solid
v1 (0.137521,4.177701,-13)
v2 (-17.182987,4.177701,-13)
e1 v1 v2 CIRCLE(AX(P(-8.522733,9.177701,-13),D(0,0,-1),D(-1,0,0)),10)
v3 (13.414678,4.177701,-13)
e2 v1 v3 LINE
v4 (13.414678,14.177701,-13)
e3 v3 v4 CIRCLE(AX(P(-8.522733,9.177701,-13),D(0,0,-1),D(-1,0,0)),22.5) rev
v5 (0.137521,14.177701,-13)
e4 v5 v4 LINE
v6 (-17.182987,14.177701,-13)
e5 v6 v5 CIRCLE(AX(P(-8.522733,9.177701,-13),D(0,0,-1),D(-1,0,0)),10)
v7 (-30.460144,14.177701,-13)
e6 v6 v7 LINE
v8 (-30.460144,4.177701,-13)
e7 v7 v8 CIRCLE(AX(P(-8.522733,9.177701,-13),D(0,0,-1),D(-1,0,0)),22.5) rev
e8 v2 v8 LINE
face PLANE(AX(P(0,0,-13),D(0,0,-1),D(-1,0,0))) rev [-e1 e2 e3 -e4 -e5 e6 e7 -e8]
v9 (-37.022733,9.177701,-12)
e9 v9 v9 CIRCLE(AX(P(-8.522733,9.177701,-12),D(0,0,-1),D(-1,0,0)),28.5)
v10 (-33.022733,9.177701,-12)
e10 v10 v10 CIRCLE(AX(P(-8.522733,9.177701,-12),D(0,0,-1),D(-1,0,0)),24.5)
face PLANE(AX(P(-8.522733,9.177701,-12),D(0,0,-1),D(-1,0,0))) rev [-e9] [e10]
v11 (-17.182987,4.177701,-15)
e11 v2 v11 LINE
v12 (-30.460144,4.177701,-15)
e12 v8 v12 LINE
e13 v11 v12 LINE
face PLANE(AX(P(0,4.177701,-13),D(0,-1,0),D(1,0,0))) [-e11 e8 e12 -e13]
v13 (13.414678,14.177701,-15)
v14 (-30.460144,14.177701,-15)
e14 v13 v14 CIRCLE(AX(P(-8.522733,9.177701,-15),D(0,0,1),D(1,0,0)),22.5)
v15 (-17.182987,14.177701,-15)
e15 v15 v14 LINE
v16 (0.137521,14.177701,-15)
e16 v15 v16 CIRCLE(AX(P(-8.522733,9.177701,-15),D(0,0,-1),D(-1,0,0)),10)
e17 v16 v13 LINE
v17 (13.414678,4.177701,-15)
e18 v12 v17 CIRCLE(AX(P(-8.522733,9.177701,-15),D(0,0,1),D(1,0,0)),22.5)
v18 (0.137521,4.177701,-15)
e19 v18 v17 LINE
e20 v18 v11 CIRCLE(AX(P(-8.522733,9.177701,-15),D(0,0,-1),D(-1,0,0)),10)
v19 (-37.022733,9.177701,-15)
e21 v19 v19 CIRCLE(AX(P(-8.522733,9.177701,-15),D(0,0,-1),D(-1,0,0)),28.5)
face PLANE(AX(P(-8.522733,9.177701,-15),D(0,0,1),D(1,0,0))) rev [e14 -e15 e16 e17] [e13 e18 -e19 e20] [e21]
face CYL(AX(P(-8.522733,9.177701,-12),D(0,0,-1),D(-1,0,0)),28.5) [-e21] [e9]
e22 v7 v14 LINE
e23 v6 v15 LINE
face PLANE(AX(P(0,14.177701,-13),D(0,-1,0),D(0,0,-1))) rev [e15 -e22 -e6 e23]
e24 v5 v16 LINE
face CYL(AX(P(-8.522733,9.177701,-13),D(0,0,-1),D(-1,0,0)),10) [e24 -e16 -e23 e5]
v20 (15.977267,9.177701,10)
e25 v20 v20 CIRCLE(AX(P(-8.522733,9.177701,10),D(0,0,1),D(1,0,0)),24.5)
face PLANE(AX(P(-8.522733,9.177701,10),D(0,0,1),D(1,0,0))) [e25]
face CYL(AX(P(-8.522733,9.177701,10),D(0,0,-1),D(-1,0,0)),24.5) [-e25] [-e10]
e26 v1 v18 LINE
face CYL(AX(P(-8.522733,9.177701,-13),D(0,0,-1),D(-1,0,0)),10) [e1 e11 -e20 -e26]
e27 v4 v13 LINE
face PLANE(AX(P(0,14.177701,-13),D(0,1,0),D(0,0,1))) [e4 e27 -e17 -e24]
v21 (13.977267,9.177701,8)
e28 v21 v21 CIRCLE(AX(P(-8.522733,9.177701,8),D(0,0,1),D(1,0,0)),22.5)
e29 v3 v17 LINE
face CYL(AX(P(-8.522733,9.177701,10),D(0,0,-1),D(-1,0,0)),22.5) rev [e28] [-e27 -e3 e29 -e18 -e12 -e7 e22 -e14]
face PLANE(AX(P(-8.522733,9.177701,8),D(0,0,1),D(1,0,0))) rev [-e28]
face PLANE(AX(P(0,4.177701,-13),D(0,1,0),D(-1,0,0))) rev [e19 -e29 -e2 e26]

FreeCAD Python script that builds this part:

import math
import FreeCAD as App
import Part
import Sketcher

V = App.Vector

doc = App.newDocument("Part")
params = doc.addObject("Spreadsheet::Sheet", "Params")
for row, (alias, value) in enumerate([
    ("sketch1_diameter", "49 mm"),
    ("sketch1_diameter2", "45 mm"),
    ("pad1_length", "10 mm"),
    ("pad1_length2", "15 mm"),
    ("pad2_length", "2 mm"),
    ("sketch3_radius", "10 mm"),
    ("sketch3_radius2", "22.5 mm"),
    ("pad3_length", "2 mm"),
    ("sketch4_diameter", "57 mm"),
    ("sketch4_diameter2", "49 mm"),
    ("pad4_length", "3 mm"),
], start=1):
    params.set(f"A{row}", alias)
    params.set(f"B{row}", "=" + value)
    params.setAlias(f"B{row}", alias)

body = doc.addObject("PartDesign::Body", "Body")

# Sketch on XY plane
sketch1 = doc.addObject("Sketcher::SketchObject", "Sketch")
body.addObject(sketch1)
sketch1.AttachmentSupport = (doc.XY_Plane, [""])
sketch1.MapMode = "FlatFace"
sketch1.addGeometry(Part.Circle(V(-9, 9, 0), V(0, 0, 1), 24), False)
sketch1.addGeometry(Part.Circle(V(-9, 9, 0), V(0, 0, 1), 22), False)
sketch1.addConstraint(Sketcher.Constraint("Coincident", 1, 3, 0, 3))
sketch1.addConstraint(Sketcher.Constraint("Diameter", 0, 49.0))
sketch1.addConstraint(Sketcher.Constraint("Diameter", 1, 45.0))
sketch1.addConstraint(Sketcher.Constraint("DistanceY", -1, 1, 0, 3, 9.177701))
sketch1.addConstraint(Sketcher.Constraint("DistanceX", 0, 3, -1, 1, 8.522733))
sketch1.setExpression("Constraints[1]", "Params.sketch1_diameter")
sketch1.setExpression("Constraints[2]", "Params.sketch1_diameter2")
pad1 = doc.addObject("PartDesign::Pad", "Pad")
body.addObject(pad1)
pad1.Profile = sketch1
pad1.Type = "TwoLengths"
pad1.setExpression("Length", "Params.pad1_length")
pad1.setExpression("Length2", "Params.pad1_length2")

# Sketch on XY plane
sketch2 = doc.addObject("Sketcher::SketchObject", "Sketch001")
body.addObject(sketch2)
sketch2.AttachmentSupport = (doc.XY_Plane, [""])
sketch2.MapMode = "FlatFace"
sketch2.AttachmentOffset = App.Placement(V(0, 0, 10), App.Rotation())
sketch2.addGeometry(Part.Circle(V(-9, 9, 0), V(0, 0, 1), 23), False)
sketch2.addConstraint(Sketcher.Constraint("Diameter", 0, 45.471733))
sketch2.addConstraint(Sketcher.Constraint("DistanceY", -1, 1, 0, 3, 9.177701))
sketch2.addConstraint(Sketcher.Constraint("DistanceX", 0, 3, -1, 1, 8.522733))
pad2 = doc.addObject("PartDesign::Pad", "Pad001")
body.addObject(pad2)
pad2.Profile = sketch2
pad2.setExpression("Length", "Params.pad2_length")
pad2.Reversed = True

# Sketch on XY plane
sketch3 = doc.addObject("Sketcher::SketchObject", "Sketch002")
body.addObject(sketch3)
sketch3.AttachmentSupport = (doc.XY_Plane, [""])
sketch3.MapMode = "FlatFace"
sketch3.AttachmentOffset = App.Placement(V(0, 0, -15), App.Rotation())
sketch3.addGeometry(Part.LineSegment(V(-30, 14, 0), V(-17, 14, 0)), False)
sketch3.addGeometry(Part.ArcOfCircle(Part.Circle(V(-9, 9, 0), V(0, 0, 1), 10), math.radians(30), math.radians(150)), False)
sketch3.addGeometry(Part.LineSegment(V(0, 14, 0), V(13, 14, 0)), False)
sketch3.addGeometry(Part.ArcOfCircle(Part.Circle(V(-9, 9, 0), V(0, 0, 1), 23), math.radians(0), math.radians(12.84)), False)
sketch3.addGeometry(Part.ArcOfCircle(Part.Circle(V(-9, 9, 0), V(0, 0, 1), 23), math.radians(-12.84), math.radians(0)), False)
sketch3.addGeometry(Part.LineSegment(V(13, 4, 0), V(0, 4, 0)), False)
sketch3.addGeometry(Part.ArcOfCircle(Part.Circle(V(-9, 9, 0), V(0, 0, 1), 10), math.radians(-150), math.radians(-30)), False)
sketch3.addGeometry(Part.LineSegment(V(-17, 4, 0), V(-30, 4, 0)), False)
sketch3.addGeometry(Part.ArcOfCircle(Part.Circle(V(-9, 9, 0), V(0, 0, 1), 23), math.radians(-180), math.radians(-167.16)), False)
sketch3.addGeometry(Part.ArcOfCircle(Part.Circle(V(-9, 9, 0), V(0, 0, 1), 23), math.radians(167.16), math.radians(180)), False)
sketch3.addConstraint(Sketcher.Constraint("Coincident", 0, 2, 1, 2))
sketch3.addConstraint(Sketcher.Constraint("Coincident", 1, 1, 2, 1))
sketch3.addConstraint(Sketcher.Constraint("Coincident", 2, 2, 3, 2))
sketch3.addConstraint(Sketcher.Constraint("Tangent", 3, 1, 4, 2))
sketch3.addConstraint(Sketcher.Constraint("Coincident", 4, 1, 5, 1))
sketch3.addConstraint(Sketcher.Constraint("Coincident", 5, 2, 6, 2))
sketch3.addConstraint(Sketcher.Constraint("Coincident", 6, 1, 7, 1))
sketch3.addConstraint(Sketcher.Constraint("Coincident", 7, 2, 8, 2))
sketch3.addConstraint(Sketcher.Constraint("Tangent", 8, 1, 9, 2))
sketch3.addConstraint(Sketcher.Constraint("Coincident", 9, 1, 0, 1))
sketch3.addConstraint(Sketcher.Constraint("Horizontal", 0))
sketch3.addConstraint(Sketcher.Constraint("Horizontal", 2))
sketch3.addConstraint(Sketcher.Constraint("Horizontal", 5))
sketch3.addConstraint(Sketcher.Constraint("Horizontal", 7))
sketch3.addConstraint(Sketcher.Constraint("Coincident", 3, 3, 1, 3))
sketch3.addConstraint(Sketcher.Constraint("Coincident", 6, 3, 1, 3))
sketch3.addConstraint(Sketcher.Constraint("Coincident", 8, 3, 1, 3))
sketch3.addConstraint(Sketcher.Constraint("Equal", 3, 4))
sketch3.addConstraint(Sketcher.Constraint("Equal", 1, 6))
sketch3.addConstraint(Sketcher.Constraint("Equal", 4, 8))
sketch3.addConstraint(Sketcher.Constraint("Equal", 8, 9))
sketch3.addConstraint(Sketcher.Constraint("Horizontal", 0, 2, 1, 1))
sketch3.addConstraint(Sketcher.Constraint("Horizontal", 9, 3, 3, 1))
sketch3.addConstraint(Sketcher.Constraint("Horizontal", 5, 2, 6, 1))
sketch3.addConstraint(Sketcher.Constraint("Horizontal", 3, 1, 8, 1))
sketch3.addConstraint(Sketcher.Constraint("Vertical", 2, 2, 4, 1))
sketch3.addConstraint(Sketcher.Constraint("Radius", 1, 10.0))
sketch3.addConstraint(Sketcher.Constraint("Radius", 3, 22.5))
sketch3.addConstraint(Sketcher.Constraint("DistanceY", 4, 3, 0, 2, 5.0))
sketch3.addConstraint(Sketcher.Constraint("DistanceY", -1, 1, 1, 3, 9.177701))
sketch3.addConstraint(Sketcher.Constraint("DistanceX", -1, 1, 1, 1, 0.137521))
sketch3.setExpression("Constraints[26]", "Params.sketch3_radius")
sketch3.setExpression("Constraints[27]", "Params.sketch3_radius2")
pad3 = doc.addObject("PartDesign::Pad", "Pad002")
body.addObject(pad3)
pad3.Profile = sketch3
pad3.setExpression("Length", "Params.pad3_length")

# Sketch on XY plane
sketch4 = doc.addObject("Sketcher::SketchObject", "Sketch003")
body.addObject(sketch4)
sketch4.AttachmentSupport = (doc.XY_Plane, [""])
sketch4.MapMode = "FlatFace"
sketch4.AttachmentOffset = App.Placement(V(0, 0, -15), App.Rotation())
sketch4.addGeometry(Part.Circle(V(-9, 9, 0), V(0, 0, 1), 28), False)
sketch4.addGeometry(Part.Circle(V(-9, 9, 0), V(0, 0, 1), 24), False)
sketch4.addConstraint(Sketcher.Constraint("Coincident", 1, 3, 0, 3))
sketch4.addConstraint(Sketcher.Constraint("Diameter", 0, 57.0))
sketch4.addConstraint(Sketcher.Constraint("Diameter", 1, 49.0))
sketch4.addConstraint(Sketcher.Constraint("DistanceY", -1, 1, 0, 3, 9.177701))
sketch4.addConstraint(Sketcher.Constraint("DistanceX", 0, 3, -1, 1, 8.522733))
sketch4.setExpression("Constraints[1]", "Params.sketch4_diameter")
sketch4.setExpression("Constraints[2]", "Params.sketch4_diameter2")
pad4 = doc.addObject("PartDesign::Pad", "Pad003")
body.addObject(pad4)
pad4.Profile = sketch4
pad4.setExpression("Length", "Params.pad4_length")

doc.recompute()
